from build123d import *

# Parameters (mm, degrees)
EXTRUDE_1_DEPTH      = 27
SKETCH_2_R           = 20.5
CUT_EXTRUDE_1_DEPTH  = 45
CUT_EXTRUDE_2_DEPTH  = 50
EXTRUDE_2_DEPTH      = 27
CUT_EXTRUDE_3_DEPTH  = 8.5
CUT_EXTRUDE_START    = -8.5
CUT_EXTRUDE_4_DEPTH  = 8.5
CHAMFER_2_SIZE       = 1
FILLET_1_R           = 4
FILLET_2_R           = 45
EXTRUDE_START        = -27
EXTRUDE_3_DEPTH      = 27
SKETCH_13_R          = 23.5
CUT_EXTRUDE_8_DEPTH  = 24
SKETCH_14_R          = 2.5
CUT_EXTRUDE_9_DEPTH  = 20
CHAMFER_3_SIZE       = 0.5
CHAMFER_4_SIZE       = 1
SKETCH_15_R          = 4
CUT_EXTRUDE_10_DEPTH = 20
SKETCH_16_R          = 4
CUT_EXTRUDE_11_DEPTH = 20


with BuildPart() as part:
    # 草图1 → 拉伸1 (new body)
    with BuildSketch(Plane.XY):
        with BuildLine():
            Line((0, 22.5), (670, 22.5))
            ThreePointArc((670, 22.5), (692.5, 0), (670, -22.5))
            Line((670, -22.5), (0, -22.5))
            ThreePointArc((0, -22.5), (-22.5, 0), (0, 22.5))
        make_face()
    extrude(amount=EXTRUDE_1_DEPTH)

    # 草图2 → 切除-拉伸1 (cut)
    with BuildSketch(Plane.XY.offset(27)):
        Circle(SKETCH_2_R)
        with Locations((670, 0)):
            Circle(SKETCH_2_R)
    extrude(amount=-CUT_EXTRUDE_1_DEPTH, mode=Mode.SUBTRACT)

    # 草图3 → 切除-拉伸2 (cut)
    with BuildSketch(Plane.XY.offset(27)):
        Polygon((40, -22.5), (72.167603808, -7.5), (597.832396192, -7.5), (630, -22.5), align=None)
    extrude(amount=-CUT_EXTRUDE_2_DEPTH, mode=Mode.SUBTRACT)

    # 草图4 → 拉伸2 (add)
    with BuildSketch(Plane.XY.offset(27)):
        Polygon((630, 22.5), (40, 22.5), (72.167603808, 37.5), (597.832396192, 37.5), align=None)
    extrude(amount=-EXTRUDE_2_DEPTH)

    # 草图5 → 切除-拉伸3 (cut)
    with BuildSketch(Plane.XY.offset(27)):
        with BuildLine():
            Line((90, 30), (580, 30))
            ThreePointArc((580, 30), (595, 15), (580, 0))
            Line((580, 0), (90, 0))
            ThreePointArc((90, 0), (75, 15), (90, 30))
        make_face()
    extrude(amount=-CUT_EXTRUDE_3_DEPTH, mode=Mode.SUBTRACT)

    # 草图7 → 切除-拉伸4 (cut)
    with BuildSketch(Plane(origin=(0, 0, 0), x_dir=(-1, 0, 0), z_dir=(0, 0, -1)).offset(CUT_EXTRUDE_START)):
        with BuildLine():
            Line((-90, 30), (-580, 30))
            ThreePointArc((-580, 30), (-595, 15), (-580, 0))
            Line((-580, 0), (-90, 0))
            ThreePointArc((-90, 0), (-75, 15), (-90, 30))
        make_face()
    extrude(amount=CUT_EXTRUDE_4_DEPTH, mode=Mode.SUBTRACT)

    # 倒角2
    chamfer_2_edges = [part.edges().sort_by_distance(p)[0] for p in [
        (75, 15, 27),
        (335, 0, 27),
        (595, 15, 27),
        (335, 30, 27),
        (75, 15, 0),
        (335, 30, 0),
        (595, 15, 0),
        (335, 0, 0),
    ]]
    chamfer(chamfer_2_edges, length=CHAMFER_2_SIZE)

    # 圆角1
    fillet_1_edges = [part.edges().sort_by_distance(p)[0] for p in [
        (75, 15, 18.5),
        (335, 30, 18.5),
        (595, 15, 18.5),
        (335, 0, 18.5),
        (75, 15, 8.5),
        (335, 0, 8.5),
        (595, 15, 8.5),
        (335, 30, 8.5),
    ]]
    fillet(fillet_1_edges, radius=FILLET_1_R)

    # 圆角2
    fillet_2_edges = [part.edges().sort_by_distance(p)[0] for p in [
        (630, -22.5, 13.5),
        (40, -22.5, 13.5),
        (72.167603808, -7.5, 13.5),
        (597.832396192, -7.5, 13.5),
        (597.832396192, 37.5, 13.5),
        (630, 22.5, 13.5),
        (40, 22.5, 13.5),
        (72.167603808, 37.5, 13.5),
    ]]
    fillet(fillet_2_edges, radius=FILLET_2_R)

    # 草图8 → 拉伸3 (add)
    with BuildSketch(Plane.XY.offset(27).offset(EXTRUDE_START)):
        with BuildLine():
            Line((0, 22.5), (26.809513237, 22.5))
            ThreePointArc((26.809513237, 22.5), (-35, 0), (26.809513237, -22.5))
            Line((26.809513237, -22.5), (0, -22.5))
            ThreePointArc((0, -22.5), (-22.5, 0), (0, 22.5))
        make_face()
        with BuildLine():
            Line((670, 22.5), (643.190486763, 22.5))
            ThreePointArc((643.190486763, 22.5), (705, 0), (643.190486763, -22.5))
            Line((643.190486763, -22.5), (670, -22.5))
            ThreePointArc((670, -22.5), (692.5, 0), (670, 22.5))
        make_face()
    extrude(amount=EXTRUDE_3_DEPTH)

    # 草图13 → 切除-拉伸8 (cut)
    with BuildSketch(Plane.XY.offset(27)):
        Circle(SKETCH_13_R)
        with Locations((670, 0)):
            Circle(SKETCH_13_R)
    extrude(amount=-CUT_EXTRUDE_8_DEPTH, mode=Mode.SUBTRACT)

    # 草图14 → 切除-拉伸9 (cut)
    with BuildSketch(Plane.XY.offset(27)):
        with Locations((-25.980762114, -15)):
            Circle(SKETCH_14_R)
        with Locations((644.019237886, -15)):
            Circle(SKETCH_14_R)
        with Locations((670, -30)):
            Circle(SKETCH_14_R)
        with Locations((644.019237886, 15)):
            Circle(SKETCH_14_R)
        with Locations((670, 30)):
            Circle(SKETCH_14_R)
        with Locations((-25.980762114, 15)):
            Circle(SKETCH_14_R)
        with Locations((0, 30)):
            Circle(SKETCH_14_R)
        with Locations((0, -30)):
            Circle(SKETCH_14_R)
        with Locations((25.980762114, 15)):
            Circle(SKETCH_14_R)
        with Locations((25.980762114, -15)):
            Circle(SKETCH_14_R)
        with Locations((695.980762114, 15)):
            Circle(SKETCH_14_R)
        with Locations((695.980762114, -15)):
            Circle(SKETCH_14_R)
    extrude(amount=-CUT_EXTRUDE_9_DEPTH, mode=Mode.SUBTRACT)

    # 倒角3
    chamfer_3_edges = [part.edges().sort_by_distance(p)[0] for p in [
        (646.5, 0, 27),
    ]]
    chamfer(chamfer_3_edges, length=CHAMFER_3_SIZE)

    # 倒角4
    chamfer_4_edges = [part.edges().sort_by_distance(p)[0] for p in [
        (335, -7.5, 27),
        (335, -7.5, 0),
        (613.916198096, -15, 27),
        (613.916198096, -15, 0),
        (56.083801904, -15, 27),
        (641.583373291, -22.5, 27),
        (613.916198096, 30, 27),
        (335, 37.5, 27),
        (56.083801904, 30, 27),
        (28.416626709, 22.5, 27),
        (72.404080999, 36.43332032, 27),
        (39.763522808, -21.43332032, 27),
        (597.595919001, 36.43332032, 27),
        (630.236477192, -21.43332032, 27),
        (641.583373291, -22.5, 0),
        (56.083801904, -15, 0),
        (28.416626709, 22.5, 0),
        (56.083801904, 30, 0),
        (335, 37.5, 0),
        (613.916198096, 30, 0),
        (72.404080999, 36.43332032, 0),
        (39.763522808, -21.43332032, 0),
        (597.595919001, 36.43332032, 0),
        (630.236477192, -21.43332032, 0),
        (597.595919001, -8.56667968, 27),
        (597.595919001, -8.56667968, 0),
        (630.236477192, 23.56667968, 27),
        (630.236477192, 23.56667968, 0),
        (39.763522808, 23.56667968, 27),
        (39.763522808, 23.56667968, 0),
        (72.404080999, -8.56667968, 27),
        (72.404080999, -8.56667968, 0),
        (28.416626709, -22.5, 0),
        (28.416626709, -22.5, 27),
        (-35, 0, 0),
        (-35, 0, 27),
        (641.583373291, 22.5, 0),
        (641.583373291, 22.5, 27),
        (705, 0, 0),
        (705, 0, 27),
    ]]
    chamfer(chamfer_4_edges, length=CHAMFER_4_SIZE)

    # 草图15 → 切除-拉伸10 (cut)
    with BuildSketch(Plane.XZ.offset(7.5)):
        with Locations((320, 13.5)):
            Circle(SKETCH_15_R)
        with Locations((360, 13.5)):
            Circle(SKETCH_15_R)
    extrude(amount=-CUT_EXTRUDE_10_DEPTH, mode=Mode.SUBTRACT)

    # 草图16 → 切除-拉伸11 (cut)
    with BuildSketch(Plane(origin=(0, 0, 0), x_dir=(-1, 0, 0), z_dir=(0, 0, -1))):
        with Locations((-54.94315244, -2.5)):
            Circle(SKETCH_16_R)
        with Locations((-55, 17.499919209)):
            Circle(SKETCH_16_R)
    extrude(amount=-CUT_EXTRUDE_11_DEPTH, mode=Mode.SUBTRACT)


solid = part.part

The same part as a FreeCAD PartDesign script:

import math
import FreeCAD as App
import Part
import Sketcher
from FreeCAD import Vector
Q = App.Units.Quantity


def edges_at(feature, points):
    """Names of the edges that pass closest to the given points."""
    edges = feature.Shape.Edges
    near = lambda p: min(range(len(edges)), key=lambda i: edges[i].distToShape(Part.Vertex(*p))[0])
    return sorted({f"Edge{near(p) + 1}" for p in points})


def add_polygon(sketch, points):
    """Adds a closed chain of lines whose ends are joined by coincident constraints."""
    first, n = sketch.GeometryCount, len(points)
    for a, b in zip(points, points[1:] + points[:1]):
        sketch.addGeometry(Part.LineSegment(App.Vector(*a, 0), App.Vector(*b, 0)), False)
    for i in range(n):
        sketch.addConstraint(Sketcher.Constraint("Coincident", first + i, 2, first + (i + 1) % n, 1))

doc = App.newDocument("Part")
params = doc.addObject("Spreadsheet::Sheet", "Params")
for row, (alias, value) in enumerate([
    ("sketch1_radius", "22.5 mm"),
    ("sketch1_width", "670 mm"),
    ("pad1_length", "27 mm"),
    ("sketch2_diameter", "41 mm"),
    ("pocket1_length", "45 mm"),
    ("sketch3_width", "590 mm"),
    ("pocket2_length", "50 mm"),
    ("sketch4_width", "590 mm"),
    ("pad2_length", "27 mm"),
    ("sketch5_radius", "15 mm"),
    ("sketch5_width", "490 mm"),
    ("pocket3_length", "8.5 mm"),
    ("sketch6_radius", "15 mm"),
    ("sketch6_width", "490 mm"),
    ("pocket4_length", "8.5 mm"),
    ("chamfer_size", "1 mm"),
    ("fillet_radius", "4 mm"),
    ("fillet2_radius", "45 mm"),
    ("sketch7_radius", "35 mm"),
    ("sketch7_radius2", "22.5 mm"),
    ("pad3_length", "27 mm"),
    ("sketch8_diameter", "47 mm"),
    ("pocket5_length", "24 mm"),
    ("sketch9_diameter", "5 mm"),
    ("pocket6_length", "20 mm"),
    ("chamfer2_size", "0.5 mm"),
    ("chamfer3_size", "1 mm"),
    ("sketch10_diameter", "8 mm"),
    ("pocket7_length", "20 mm"),
    ("sketch11_diameter", "8 mm"),
    ("pocket8_length", "20 mm"),
], start=1):
    params.set(f"A{row}", alias)
    params.set(f"B{row}", "=" + value)
    params.setAlias(f"B{row}", alias)

body = doc.addObject("PartDesign::Body", "Body")

# Sketch on XY plane
sketch1 = body.newObject("Sketcher::SketchObject", "Sketch")
sketch1.AttachmentSupport = (doc.getObject("XY_Plane"), [""])
sketch1.MapMode = "FlatFace"
sketch1.addGeometry(Part.LineSegment(Vector(670, 22, 0), Vector(0, 22, 0)), False)
sketch1.addGeometry(Part.ArcOfCircle(Part.Circle(Vector(0, 0, 0), Vector(0, 0, 1), 22), math.radians(90), math.radians(270)), False)
sketch1.addGeometry(Part.LineSegment(Vector(0, -22, 0), Vector(670, -22, 0)), False)
sketch1.addGeometry(Part.ArcOfCircle(Part.Circle(Vector(670, 0, 0), Vector(0, 0, 1), 22), math.radians(-90), math.radians(90)), False)
sketch1.addConstraint(Sketcher.Constraint("Tangent", 0, 2, 1, 1))
sketch1.addConstraint(Sketcher.Constraint("Tangent", 1, 2, 2, 1))
sketch1.addConstraint(Sketcher.Constraint("Tangent", 2, 2, 3, 1))
sketch1.addConstraint(Sketcher.Constraint("Tangent", 3, 2, 0, 1))
sketch1.addConstraint(Sketcher.Constraint("Horizontal", 0))
sketch1.addConstraint(Sketcher.Constraint("Horizontal", 2))
sketch1.addConstraint(Sketcher.Constraint("Coincident", 1, 3, -1, 1))
sketch1.addConstraint(Sketcher.Constraint("Radius", 1, Q("22.5 mm")))
sketch1.addConstraint(Sketcher.Constraint("DistanceX", 0, 2, 0, 1, Q("670 mm")))
sketch1.setExpression("Constraints[7]", "Params.sketch1_radius")
sketch1.setExpression("Constraints[8]", "Params.sketch1_width")
pad1 = body.newObject("PartDesign::Pad", "Pad")
pad1.Profile = sketch1
pad1.setExpression("Length", "Params.pad1_length")

# Sketch on XY plane
sketch2 = body.newObject("Sketcher::SketchObject", "Sketch001")
sketch2.AttachmentSupport = (doc.getObject("XY_Plane"), [""])
sketch2.MapMode = "FlatFace"
sketch2.AttachmentOffset = App.Placement(Vector(0, 0, 27), App.Rotation())
sketch2.addGeometry(Part.Circle(Vector(0, 0, 0), Vector(0, 0, 1), 20), False)
sketch2.addGeometry(Part.Circle(Vector(670, 0, 0), Vector(0, 0, 1), 20), False)
sketch2.addConstraint(Sketcher.Constraint("Coincident", 0, 3, -1, 1))
sketch2.addConstraint(Sketcher.Constraint("Equal", 0, 1))
sketch2.addConstraint(Sketcher.Constraint("PointOnObject", 1, 3, -1))
sketch2.addConstraint(Sketcher.Constraint("Diameter", 0, Q("41 mm")))
sketch2.addConstraint(Sketcher.Constraint("DistanceX", -1, 1, 1, 3, Q("670 mm")))
sketch2.setExpression("Constraints[3]", "Params.sketch2_diameter")
pocket1 = body.newObject("PartDesign::Pocket", "Pocket")
pocket1.Profile = sketch2
pocket1.setExpression("Length", "Params.pocket1_length")

# Sketch on XY plane
sketch3 = body.newObject("Sketcher::SketchObject", "Sketch002")
sketch3.AttachmentSupport = (doc.getObject("XY_Plane"), [""])
sketch3.MapMode = "FlatFace"
sketch3.AttachmentOffset = App.Placement(Vector(0, 0, 27), App.Rotation())
add_polygon(sketch3, [(72, -8), (40, -22), (630, -22), (598, -8)])  # lines 0-3
sketch3.addConstraint(Sketcher.Constraint("Horizontal", 1))
sketch3.addConstraint(Sketcher.Constraint("Horizontal", 3))
sketch3.addConstraint(Sketcher.Constraint("Equal", 0, 2))
sketch3.addConstraint(Sketcher.Constraint("DistanceX", 1, 1, 1, 2, Q("590 mm")))
sketch3.addConstraint(Sketcher.Constraint("Angle", 0, Q("-155 deg")))
sketch3.addConstraint(Sketcher.Constraint("DistanceX", -1, 1, 0, 2, Q("40 mm")))
sketch3.addConstraint(Sketcher.Constraint("DistanceY", 1, 2, 2, 2, Q("15 mm")))
sketch3.addConstraint(Sketcher.Constraint("DistanceY", 0, 2, -1, 1, Q("22.5 mm")))
sketch3.setExpression("Constraints[7]", "Params.sketch3_width")
pocket2 = body.newObject("PartDesign::Pocket", "Pocket001")
pocket2.Profile = sketch3
pocket2.setExpression("Length", "Params.pocket2_length")

# Sketch on XY plane
sketch4 = body.newObject("Sketcher::SketchObject", "Sketch003")
sketch4.AttachmentSupport = (doc.getObject("XY_Plane"), [""])
sketch4.MapMode = "FlatFace"
sketch4.AttachmentOffset = App.Placement(Vector(0, 0, 27), App.Rotation())
add_polygon(sketch4, [(40, 22), (630, 22), (598, 38), (72, 38)])  # lines 0-3
sketch4.addConstraint(Sketcher.Constraint("Horizontal", 0))
sketch4.addConstraint(Sketcher.Constraint("Horizontal", 2))
sketch4.addConstraint(Sketcher.Constraint("Equal", 1, 3))
sketch4.addConstraint(Sketcher.Constraint("DistanceX", 0, 1, 0, 2, Q("590 mm")))
sketch4.addConstraint(Sketcher.Constraint("Angle", 1, Q("155 deg")))
sketch4.addConstraint(Sketcher.Constraint("DistanceX", -1, 1, 0, 2, Q("630 mm")))
sketch4.addConstraint(Sketcher.Constraint("DistanceY", 0, 2, 1, 2, Q("15 mm")))
sketch4.addConstraint(Sketcher.Constraint("DistanceY", -1, 1, 0, 2, Q("22.5 mm")))
sketch4.setExpression("Constraints[7]", "Params.sketch4_width")
pad2 = body.newObject("PartDesign::Pad", "Pad001")
pad2.Profile = sketch4
pad2.setExpression("Length", "Params.pad2_length")
pad2.Reversed = True

# Sketch on XY plane
sketch5 = body.newObject("Sketcher::SketchObject", "Sketch004")
sketch5.AttachmentSupport = (doc.getObject("XY_Plane"), [""])
sketch5.MapMode = "FlatFace"
sketch5.AttachmentOffset = App.Placement(Vector(0, 0, 27), App.Rotation())
sketch5.addGeometry(Part.LineSegment(Vector(580, 30, 0), Vector(90, 30, 0)), False)
sketch5.addGeometry(Part.ArcOfCircle(Part.Circle(Vector(90, 15, 0), Vector(0, 0, 1), 15), math.radians(90), math.radians(270)), False)
sketch5.addGeometry(Part.LineSegment(Vector(90, 0, 0), Vector(580, 0, 0)), False)
sketch5.addGeometry(Part.ArcOfCircle(Part.Circle(Vector(580, 15, 0), Vector(0, 0, 1), 15), math.radians(-90), math.radians(90)), False)
sketch5.addConstraint(Sketcher.Constraint("Tangent", 0, 2, 1, 1))
sketch5.addConstraint(Sketcher.Constraint("Tangent", 1, 2, 2, 1))
sketch5.addConstraint(Sketcher.Constraint("Tangent", 2, 2, 3, 1))
sketch5.addConstraint(Sketcher.Constraint("Tangent", 3, 2, 0, 1))
sketch5.addConstraint(Sketcher.Constraint("Horizontal", 0))
sketch5.addConstraint(Sketcher.Constraint("Horizontal", 2))
sketch5.addConstraint(Sketcher.Constraint("PointOnObject", 1, 2, -1))
sketch5.addConstraint(Sketcher.Constraint("Radius", 1, Q("15 mm")))
sketch5.addConstraint(Sketcher.Constraint("DistanceX", 0, 2, 0, 1, Q("490 mm")))
sketch5.addConstraint(Sketcher.Constraint("DistanceX", -1, 1, 1, 3, Q("90 mm")))
sketch5.setExpression("Constraints[7]", "Params.sketch5_radius")
sketch5.setExpression("Constraints[8]", "Params.sketch5_width")
pocket3 = body.newObject("PartDesign::Pocket", "Pocket002")
pocket3.Profile = sketch5
pocket3.setExpression("Length", "Params.pocket3_length")

# Sketch on XY plane
sketch6 = body.newObject("Sketcher::SketchObject", "Sketch005")
sketch6.AttachmentSupport = (doc.getObject("XY_Plane"), [""])
sketch6.MapMode = "FlatFace"
sketch6.AttachmentOffset = App.Placement(Vector(0, 0, 8.5), App.Rotation())
sketch6.addGeometry(Part.LineSegment(Vector(90, 30, 0), Vector(580, 30, 0)), False)
sketch6.addGeometry(Part.ArcOfCircle(Part.Circle(Vector(580, 15, 0), Vector(0, 0, 1), 15), math.radians(-90), math.radians(90)), False)
sketch6.addGeometry(Part.LineSegment(Vector(580, 0, 0), Vector(90, 0, 0)), False)
sketch6.addGeometry(Part.ArcOfCircle(Part.Circle(Vector(90, 15, 0), Vector(0, 0, 1), 15), math.radians(90), math.radians(270)), False)
sketch6.addConstraint(Sketcher.Constraint("Tangent", 0, 2, 1, 2))
sketch6.addConstraint(Sketcher.Constraint("Tangent", 1, 1, 2, 1))
sketch6.addConstraint(Sketcher.Constraint("Tangent", 2, 2, 3, 2))
sketch6.addConstraint(Sketcher.Constraint("Tangent", 3, 1, 0, 1))
sketch6.addConstraint(Sketcher.Constraint("Horizontal", 0))
sketch6.addConstraint(Sketcher.Constraint("Horizontal", 2))
sketch6.addConstraint(Sketcher.Constraint("PointOnObject", 1, 1, -1))
sketch6.addConstraint(Sketcher.Constraint("Radius", 1, Q("15 mm")))
sketch6.addConstraint(Sketcher.Constraint("DistanceX", 0, 1, 0, 2, Q("490 mm")))
sketch6.addConstraint(Sketcher.Constraint("DistanceX", -1, 1, 1, 3, Q("580 mm")))
sketch6.setExpression("Constraints[7]", "Params.sketch6_radius")
sketch6.setExpression("Constraints[8]", "Params.sketch6_width")
pocket4 = body.newObject("PartDesign::Pocket", "Pocket003")
pocket4.Profile = sketch6
pocket4.setExpression("Length", "Params.pocket4_length")
doc.recompute()

chamfer = body.newObject("PartDesign::Chamfer", "Chamfer")
chamfer.Base = (pocket4, edges_at(pocket4, [
    (75, 15, 27),
    (335, 0, 27),
    (595, 15, 27),
    (335, 30, 27),
    (75, 15, 0),
    (335, 30, 0),
    (595, 15, 0),
    (335, 0, 0),
]))
chamfer.setExpression("Size", "Params.chamfer_size")
doc.recompute()

fillet = body.newObject("PartDesign::Fillet", "Fillet")
fillet.Base = (chamfer, edges_at(chamfer, [
    (75, 15, 18.5),
    (335, 30, 18.5),
    (595, 15, 18.5),
    (335, 0, 18.5),
    (75, 15, 8.5),
    (335, 0, 8.5),
    (595, 15, 8.5),
    (335, 30, 8.5),
]))
fillet.setExpression("Radius", "Params.fillet_radius")
doc.recompute()

fillet2 = body.newObject("PartDesign::Fillet", "Fillet001")
fillet2.Base = (fillet, edges_at(fillet, [
    (630, -22.5, 13.5),
    (40, -22.5, 13.5),
    (72.168, -7.5, 13.5),
    (597.832, -7.5, 13.5),
    (597.832, 37.5, 13.5),
    (630, 22.5, 13.5),
    (40, 22.5, 13.5),
    (72.168, 37.5, 13.5),
]))
fillet2.setExpression("Radius", "Params.fillet2_radius")

# Sketch on XY plane
sketch7 = body.newObject("Sketcher::SketchObject", "Sketch006")
sketch7.AttachmentSupport = (doc.getObject("XY_Plane"), [""])
sketch7.MapMode = "FlatFace"
sketch7.addGeometry(Part.LineSegment(Vector(0, 22, 0), Vector(27, 22, 0)), False)
sketch7.addGeometry(Part.ArcOfCircle(Part.Circle(Vector(0, 0, 0), Vector(0, 0, 1), 35), math.radians(40), math.radians(320)), False)
sketch7.addGeometry(Part.LineSegment(Vector(27, -22, 0), Vector(0, -22, 0)), False)
sketch7.addGeometry(Part.ArcOfCircle(Part.Circle(Vector(0, 0, 0), Vector(0, 0, 1), 22), math.radians(90), math.radians(270)), False)
sketch7.addGeometry(Part.LineSegment(Vector(643, 22, 0), Vector(670, 22, 0)), False)
sketch7.addGeometry(Part.ArcOfCircle(Part.Circle(Vector(670, 0, 0), Vector(0, 0, 1), 22), math.radians(-90), math.radians(90)), False)
sketch7.addGeometry(Part.LineSegment(Vector(670, -22, 0), Vector(643, -22, 0)), False)
sketch7.addGeometry(Part.ArcOfCircle(Part.Circle(Vector(670, 0, 0), Vector(0, 0, 1), 35), math.radians(-140), math.radians(140)), False)
sketch7.addConstraint(Sketcher.Constraint("Coincident", 0, 2, 1, 1))
sketch7.addConstraint(Sketcher.Constraint("Coincident", 1, 2, 2, 1))
sketch7.addConstraint(Sketcher.Constraint("Tangent", 2, 2, 3, 2))
sketch7.addConstraint(Sketcher.Constraint("Tangent", 3, 1, 0, 1))
sketch7.addConstraint(Sketcher.Constraint("Tangent", 4, 2, 5, 2))
sketch7.addConstraint(Sketcher.Constraint("Tangent", 5, 1, 6, 1))
sketch7.addConstraint(Sketcher.Constraint("Coincident", 6, 2, 7, 1))
sketch7.addConstraint(Sketcher.Constraint("Coincident", 7, 2, 4, 1))
sketch7.addConstraint(Sketcher.Constraint("Horizontal", 0))
sketch7.addConstraint(Sketcher.Constraint("Horizontal", 2))
sketch7.addConstraint(Sketcher.Constraint("Horizontal", 4))
sketch7.addConstraint(Sketcher.Constraint("Horizontal", 6))
sketch7.addConstraint(Sketcher.Constraint("Coincident", 1, 3, -1, 1))
sketch7.addConstraint(Sketcher.Constraint("Coincident", 3, 3, -1, 1))
sketch7.addConstraint(Sketcher.Constraint("Coincident", 7, 3, 5, 3))
sketch7.addConstraint(Sketcher.Constraint("Equal", 3, 5))
sketch7.addConstraint(Sketcher.Constraint("Equal", 1, 7))
sketch7.addConstraint(Sketcher.Constraint("PointOnObject", 5, 3, -1))
sketch7.addConstraint(Sketcher.Constraint("Radius", 1, Q("35 mm")))
sketch7.addConstraint(Sketcher.Constraint("Radius", 3, Q("22.5 mm")))
sketch7.addConstraint(Sketcher.Constraint("DistanceX", -1, 1, 5, 3, Q("670 mm")))
sketch7.setExpression("Constraints[18]", "Params.sketch7_radius")
sketch7.setExpression("Constraints[19]", "Params.sketch7_radius2")
pad3 = body.newObject("PartDesign::Pad", "Pad002")
pad3.Profile = sketch7
pad3.setExpression("Length", "Params.pad3_length")

# Sketch on XY plane
sketch8 = body.newObject("Sketcher::SketchObject", "Sketch007")
sketch8.AttachmentSupport = (doc.getObject("XY_Plane"), [""])
sketch8.MapMode = "FlatFace"
sketch8.AttachmentOffset = App.Placement(Vector(0, 0, 27), App.Rotation())
sketch8.addGeometry(Part.Circle(Vector(0, 0, 0), Vector(0, 0, 1), 24), False)
sketch8.addGeometry(Part.Circle(Vector(670, 0, 0), Vector(0, 0, 1), 24), False)
sketch8.addConstraint(Sketcher.Constraint("Coincident", 0, 3, -1, 1))
sketch8.addConstraint(Sketcher.Constraint("Equal", 0, 1))
sketch8.addConstraint(Sketcher.Constraint("PointOnObject", 1, 3, -1))
sketch8.addConstraint(Sketcher.Constraint("Diameter", 0, Q("47 mm")))
sketch8.addConstraint(Sketcher.Constraint("DistanceX", -1, 1, 1, 3, Q("670 mm")))
sketch8.setExpression("Constraints[3]", "Params.sketch8_diameter")
pocket5 = body.newObject("PartDesign::Pocket", "Pocket004")
pocket5.Profile = sketch8
pocket5.setExpression("Length", "Params.pocket5_length")

# Sketch on XY plane
sketch9 = body.newObject("Sketcher::SketchObject", "Sketch008")
sketch9.AttachmentSupport = (doc.getObject("XY_Plane"), [""])
sketch9.MapMode = "FlatFace"
sketch9.AttachmentOffset = App.Placement(Vector(0, 0, 27), App.Rotation())
sketch9.addGeometry(Part.Circle(Vector(-26, -15, 0), Vector(0, 0, 1), 2.5), False)
sketch9.addGeometry(Part.Circle(Vector(644, -15, 0), Vector(0, 0, 1), 2.5), False)
sketch9.addGeometry(Part.Circle(Vector(670, -30, 0), Vector(0, 0, 1), 2.5), False)
sketch9.addGeometry(Part.Circle(Vector(644, 15, 0), Vector(0, 0, 1), 2.5), False)
sketch9.addGeometry(Part.Circle(Vector(670, 30, 0), Vector(0, 0, 1), 2.5), False)
sketch9.addGeometry(Part.Circle(Vector(-26, 15, 0), Vector(0, 0, 1), 2.5), False)
sketch9.addGeometry(Part.Circle(Vector(0, 30, 0), Vector(0, 0, 1), 2.5), False)
sketch9.addGeometry(Part.Circle(Vector(0, -30, 0), Vector(0, 0, 1), 2.5), False)
sketch9.addGeometry(Part.Circle(Vector(26, 15, 0), Vector(0, 0, 1), 2.5), False)
sketch9.addGeometry(Part.Circle(Vector(26, -15, 0), Vector(0, 0, 1), 2.5), False)
sketch9.addGeometry(Part.Circle(Vector(696, 15, 0), Vector(0, 0, 1), 2.5), False)
sketch9.addGeometry(Part.Circle(Vector(696, -15, 0), Vector(0, 0, 1), 2.5), False)
sketch9.addConstraint(Sketcher.Constraint("Equal", 0, 1))
sketch9.addConstraint(Sketcher.Constraint("Equal", 1, 2))
sketch9.addConstraint(Sketcher.Constraint("Equal", 2, 3))
sketch9.addConstraint(Sketcher.Constraint("Equal", 3, 4))
sketch9.addConstraint(Sketcher.Constraint("Equal", 4, 5))
sketch9.addConstraint(Sketcher.Constraint("Equal", 5, 6))
sketch9.addConstraint(Sketcher.Constraint("Equal", 6, 7))
sketch9.addConstraint(Sketcher.Constraint("Equal", 7, 8))
sketch9.addConstraint(Sketcher.Constraint("Equal", 8, 9))
sketch9.addConstraint(Sketcher.Constraint("Equal", 9, 10))
sketch9.addConstraint(Sketcher.Constraint("Equal", 10, 11))
sketch9.addConstraint(Sketcher.Constraint("Symmetric", 6, 3, 7, 3, -1, 1))
sketch9.addConstraint(Sketcher.Constraint("Symmetric", 0, 3, 8, 3, -1, 1))
sketch9.addConstraint(Sketcher.Constraint("Symmetric", 5, 3, 9, 3, -1, 1))
sketch9.addConstraint(Sketcher.Constraint("Symmetric", 5, 3, 8, 3, -2))
sketch9.addConstraint(Sketcher.Constraint("Symmetric", 1, 3, 3, 3, -1))
sketch9.addConstraint(Sketcher.Constraint("Symmetric", 2, 3, 4, 3, -1))
sketch9.addConstraint(Sketcher.Constraint("Symmetric", 10, 3, 11, 3, -1))
sketch9.addConstraint(Sketcher.Constraint("PointOnObject", 6, 3, -2))
sketch9.addConstraint(Sketcher.Constraint("Horizontal", 0, 3, 1, 3))
sketch9.addConstraint(Sketcher.Constraint("Horizontal", 4, 3, 6, 3))
sketch9.addConstraint(Sketcher.Constraint("Horizontal", 8, 3, 10, 3))
sketch9.addConstraint(Sketcher.Constraint("Diameter", 0, Q("5 mm")))
sketch9.addConstraint(Sketcher.Constraint("DistanceY", 0, 3, -1, 1, Q("15 mm")))
sketch9.addConstraint(Sketcher.Constraint("DistanceX", -1, 1, 2, 3, Q("670 mm")))
sketch9.addConstraint(Sketcher.Constraint("DistanceY", 2, 3, -1, 1, Q("30 mm")))
sketch9.addConstraint(Sketcher.Constraint("DistanceX", 0, 3, 1, 3, Q("670 mm")))
sketch9.addConstraint(Sketcher.Constraint("DistanceX", 8, 3, 10, 3, Q("670 mm")))
sketch9.addConstraint(Sketcher.Constraint("DistanceX", 0, 3, -1, 1, Q("25.980762 mm")))
sketch9.setExpression("Constraints[22]", "Params.sketch9_diameter")
pocket6 = body.newObject("PartDesign::Pocket", "Pocket005")
pocket6.Profile = sketch9
pocket6.setExpression("Length", "Params.pocket6_length")
doc.recompute()

chamfer2 = body.newObject("PartDesign::Chamfer", "Chamfer001")
chamfer2.Base = (pocket6, edges_at(pocket6, [(646.5, 0, 27)]))
chamfer2.setExpression("Size", "Params.chamfer2_size")
doc.recompute()

chamfer3 = body.newObject("PartDesign::Chamfer", "Chamfer002")
chamfer3.Base = (chamfer2, edges_at(chamfer2, [
    (335, -7.5, 27),
    (335, -7.5, 0),
    (613.916, -15, 27),
    (613.916, -15, 0),
    (56.084, -15, 27),
    (641.583, -22.5, 27),
    (613.916, 30, 27),
    (335, 37.5, 27),
    (56.084, 30, 27),
    (28.417, 22.5, 27),
    (72.404, 36.433, 27),
    (39.764, -21.433, 27),
    (597.596, 36.433, 27),
    (630.236, -21.433, 27),
    (641.583, -22.5, 0),
    (56.084, -15, 0),
    (28.417, 22.5, 0),
    (56.084, 30, 0),
    (335, 37.5, 0),
    (613.916, 30, 0),
    (72.404, 36.433, 0),
    (39.764, -21.433, 0),
    (597.596, 36.433, 0),
    (630.236, -21.433, 0),
    (597.596, -8.567, 27),
    (597.596, -8.567, 0),
    (630.236, 23.567, 27),
    (630.236, 23.567, 0),
    (39.764, 23.567, 27),
    (39.764, 23.567, 0),
    (72.404, -8.567, 27),
    (72.404, -8.567, 0),
    (28.417, -22.5, 0),
    (28.417, -22.5, 27),
    (-35, 0, 0),
    (-35, 0, 27),
    (641.583, 22.5, 0),
    (641.583, 22.5, 27),
    (705, 0, 0),
    (705, 0, 27),
]))
chamfer3.setExpression("Size", "Params.chamfer3_size")

# Sketch on XZ plane
sketch10 = body.newObject("Sketcher::SketchObject", "Sketch009")
sketch10.AttachmentSupport = (doc.getObject("XZ_Plane"), [""])
sketch10.MapMode = "FlatFace"
sketch10.AttachmentOffset = App.Placement(Vector(0, 0, 7.5), App.Rotation())
sketch10.addGeometry(Part.Circle(Vector(320, 13.5, 0), Vector(0, 0, 1), 4), False)
sketch10.addGeometry(Part.Circle(Vector(360, 13.5, 0), Vector(0, 0, 1), 4), False)
sketch10.addConstraint(Sketcher.Constraint("Equal", 0, 1))
sketch10.addConstraint(Sketcher.Constraint("Horizontal", 0, 3, 1, 3))
sketch10.addConstraint(Sketcher.Constraint("Diameter", 0, Q("8 mm")))
sketch10.addConstraint(Sketcher.Constraint("DistanceX", -1, 1, 0, 3, Q("320 mm")))
sketch10.addConstraint(Sketcher.Constraint("DistanceX", -1, 1, 1, 3, Q("360 mm")))
sketch10.addConstraint(Sketcher.Constraint("DistanceY", -1, 1, 0, 3, Q("13.5 mm")))
sketch10.setExpression("Constraints[2]", "Params.sketch10_diameter")
pocket7 = body.newObject("PartDesign::Pocket", "Pocket006")
pocket7.Profile = sketch10
pocket7.setExpression("Length", "Params.pocket7_length")

# Sketch on XY plane
sketch11 = body.newObject("Sketcher::SketchObject", "Sketch010")
sketch11.AttachmentSupport = (doc.getObject("XY_Plane"), [""])
sketch11.MapMode = "FlatFace"
sketch11.addGeometry(Part.Circle(Vector(54.9, -2.5, 0), Vector(0, 0, 1), 4), False)
sketch11.addGeometry(Part.Circle(Vector(55, 17.5, 0), Vector(0, 0, 1), 4), False)
sketch11.addConstraint(Sketcher.Constraint("Equal", 0, 1))
sketch11.addConstraint(Sketcher.Constraint("Diameter", 0, Q("8 mm")))
sketch11.addConstraint(Sketcher.Constraint("DistanceX", -1, 1, 1, 3, Q("55 mm")))
sketch11.addConstraint(Sketcher.Constraint("DistanceY", 0, 3, -1, 1, Q("2.5 mm")))
sketch11.addConstraint(Sketcher.Constraint("DistanceY", -1, 1, 1, 3, Q("17.499919 mm")))
sketch11.addConstraint(Sketcher.Constraint("DistanceX", -1, 1, 0, 3, Q("54.943152 mm")))
sketch11.setExpression("Constraints[1]", "Params.sketch11_diameter")
pocket8 = body.newObject("PartDesign::Pocket", "Pocket007")
pocket8.Profile = sketch11
pocket8.setExpression("Length", "Params.pocket8_length")
pocket8.Reversed = True

doc.recompute()
